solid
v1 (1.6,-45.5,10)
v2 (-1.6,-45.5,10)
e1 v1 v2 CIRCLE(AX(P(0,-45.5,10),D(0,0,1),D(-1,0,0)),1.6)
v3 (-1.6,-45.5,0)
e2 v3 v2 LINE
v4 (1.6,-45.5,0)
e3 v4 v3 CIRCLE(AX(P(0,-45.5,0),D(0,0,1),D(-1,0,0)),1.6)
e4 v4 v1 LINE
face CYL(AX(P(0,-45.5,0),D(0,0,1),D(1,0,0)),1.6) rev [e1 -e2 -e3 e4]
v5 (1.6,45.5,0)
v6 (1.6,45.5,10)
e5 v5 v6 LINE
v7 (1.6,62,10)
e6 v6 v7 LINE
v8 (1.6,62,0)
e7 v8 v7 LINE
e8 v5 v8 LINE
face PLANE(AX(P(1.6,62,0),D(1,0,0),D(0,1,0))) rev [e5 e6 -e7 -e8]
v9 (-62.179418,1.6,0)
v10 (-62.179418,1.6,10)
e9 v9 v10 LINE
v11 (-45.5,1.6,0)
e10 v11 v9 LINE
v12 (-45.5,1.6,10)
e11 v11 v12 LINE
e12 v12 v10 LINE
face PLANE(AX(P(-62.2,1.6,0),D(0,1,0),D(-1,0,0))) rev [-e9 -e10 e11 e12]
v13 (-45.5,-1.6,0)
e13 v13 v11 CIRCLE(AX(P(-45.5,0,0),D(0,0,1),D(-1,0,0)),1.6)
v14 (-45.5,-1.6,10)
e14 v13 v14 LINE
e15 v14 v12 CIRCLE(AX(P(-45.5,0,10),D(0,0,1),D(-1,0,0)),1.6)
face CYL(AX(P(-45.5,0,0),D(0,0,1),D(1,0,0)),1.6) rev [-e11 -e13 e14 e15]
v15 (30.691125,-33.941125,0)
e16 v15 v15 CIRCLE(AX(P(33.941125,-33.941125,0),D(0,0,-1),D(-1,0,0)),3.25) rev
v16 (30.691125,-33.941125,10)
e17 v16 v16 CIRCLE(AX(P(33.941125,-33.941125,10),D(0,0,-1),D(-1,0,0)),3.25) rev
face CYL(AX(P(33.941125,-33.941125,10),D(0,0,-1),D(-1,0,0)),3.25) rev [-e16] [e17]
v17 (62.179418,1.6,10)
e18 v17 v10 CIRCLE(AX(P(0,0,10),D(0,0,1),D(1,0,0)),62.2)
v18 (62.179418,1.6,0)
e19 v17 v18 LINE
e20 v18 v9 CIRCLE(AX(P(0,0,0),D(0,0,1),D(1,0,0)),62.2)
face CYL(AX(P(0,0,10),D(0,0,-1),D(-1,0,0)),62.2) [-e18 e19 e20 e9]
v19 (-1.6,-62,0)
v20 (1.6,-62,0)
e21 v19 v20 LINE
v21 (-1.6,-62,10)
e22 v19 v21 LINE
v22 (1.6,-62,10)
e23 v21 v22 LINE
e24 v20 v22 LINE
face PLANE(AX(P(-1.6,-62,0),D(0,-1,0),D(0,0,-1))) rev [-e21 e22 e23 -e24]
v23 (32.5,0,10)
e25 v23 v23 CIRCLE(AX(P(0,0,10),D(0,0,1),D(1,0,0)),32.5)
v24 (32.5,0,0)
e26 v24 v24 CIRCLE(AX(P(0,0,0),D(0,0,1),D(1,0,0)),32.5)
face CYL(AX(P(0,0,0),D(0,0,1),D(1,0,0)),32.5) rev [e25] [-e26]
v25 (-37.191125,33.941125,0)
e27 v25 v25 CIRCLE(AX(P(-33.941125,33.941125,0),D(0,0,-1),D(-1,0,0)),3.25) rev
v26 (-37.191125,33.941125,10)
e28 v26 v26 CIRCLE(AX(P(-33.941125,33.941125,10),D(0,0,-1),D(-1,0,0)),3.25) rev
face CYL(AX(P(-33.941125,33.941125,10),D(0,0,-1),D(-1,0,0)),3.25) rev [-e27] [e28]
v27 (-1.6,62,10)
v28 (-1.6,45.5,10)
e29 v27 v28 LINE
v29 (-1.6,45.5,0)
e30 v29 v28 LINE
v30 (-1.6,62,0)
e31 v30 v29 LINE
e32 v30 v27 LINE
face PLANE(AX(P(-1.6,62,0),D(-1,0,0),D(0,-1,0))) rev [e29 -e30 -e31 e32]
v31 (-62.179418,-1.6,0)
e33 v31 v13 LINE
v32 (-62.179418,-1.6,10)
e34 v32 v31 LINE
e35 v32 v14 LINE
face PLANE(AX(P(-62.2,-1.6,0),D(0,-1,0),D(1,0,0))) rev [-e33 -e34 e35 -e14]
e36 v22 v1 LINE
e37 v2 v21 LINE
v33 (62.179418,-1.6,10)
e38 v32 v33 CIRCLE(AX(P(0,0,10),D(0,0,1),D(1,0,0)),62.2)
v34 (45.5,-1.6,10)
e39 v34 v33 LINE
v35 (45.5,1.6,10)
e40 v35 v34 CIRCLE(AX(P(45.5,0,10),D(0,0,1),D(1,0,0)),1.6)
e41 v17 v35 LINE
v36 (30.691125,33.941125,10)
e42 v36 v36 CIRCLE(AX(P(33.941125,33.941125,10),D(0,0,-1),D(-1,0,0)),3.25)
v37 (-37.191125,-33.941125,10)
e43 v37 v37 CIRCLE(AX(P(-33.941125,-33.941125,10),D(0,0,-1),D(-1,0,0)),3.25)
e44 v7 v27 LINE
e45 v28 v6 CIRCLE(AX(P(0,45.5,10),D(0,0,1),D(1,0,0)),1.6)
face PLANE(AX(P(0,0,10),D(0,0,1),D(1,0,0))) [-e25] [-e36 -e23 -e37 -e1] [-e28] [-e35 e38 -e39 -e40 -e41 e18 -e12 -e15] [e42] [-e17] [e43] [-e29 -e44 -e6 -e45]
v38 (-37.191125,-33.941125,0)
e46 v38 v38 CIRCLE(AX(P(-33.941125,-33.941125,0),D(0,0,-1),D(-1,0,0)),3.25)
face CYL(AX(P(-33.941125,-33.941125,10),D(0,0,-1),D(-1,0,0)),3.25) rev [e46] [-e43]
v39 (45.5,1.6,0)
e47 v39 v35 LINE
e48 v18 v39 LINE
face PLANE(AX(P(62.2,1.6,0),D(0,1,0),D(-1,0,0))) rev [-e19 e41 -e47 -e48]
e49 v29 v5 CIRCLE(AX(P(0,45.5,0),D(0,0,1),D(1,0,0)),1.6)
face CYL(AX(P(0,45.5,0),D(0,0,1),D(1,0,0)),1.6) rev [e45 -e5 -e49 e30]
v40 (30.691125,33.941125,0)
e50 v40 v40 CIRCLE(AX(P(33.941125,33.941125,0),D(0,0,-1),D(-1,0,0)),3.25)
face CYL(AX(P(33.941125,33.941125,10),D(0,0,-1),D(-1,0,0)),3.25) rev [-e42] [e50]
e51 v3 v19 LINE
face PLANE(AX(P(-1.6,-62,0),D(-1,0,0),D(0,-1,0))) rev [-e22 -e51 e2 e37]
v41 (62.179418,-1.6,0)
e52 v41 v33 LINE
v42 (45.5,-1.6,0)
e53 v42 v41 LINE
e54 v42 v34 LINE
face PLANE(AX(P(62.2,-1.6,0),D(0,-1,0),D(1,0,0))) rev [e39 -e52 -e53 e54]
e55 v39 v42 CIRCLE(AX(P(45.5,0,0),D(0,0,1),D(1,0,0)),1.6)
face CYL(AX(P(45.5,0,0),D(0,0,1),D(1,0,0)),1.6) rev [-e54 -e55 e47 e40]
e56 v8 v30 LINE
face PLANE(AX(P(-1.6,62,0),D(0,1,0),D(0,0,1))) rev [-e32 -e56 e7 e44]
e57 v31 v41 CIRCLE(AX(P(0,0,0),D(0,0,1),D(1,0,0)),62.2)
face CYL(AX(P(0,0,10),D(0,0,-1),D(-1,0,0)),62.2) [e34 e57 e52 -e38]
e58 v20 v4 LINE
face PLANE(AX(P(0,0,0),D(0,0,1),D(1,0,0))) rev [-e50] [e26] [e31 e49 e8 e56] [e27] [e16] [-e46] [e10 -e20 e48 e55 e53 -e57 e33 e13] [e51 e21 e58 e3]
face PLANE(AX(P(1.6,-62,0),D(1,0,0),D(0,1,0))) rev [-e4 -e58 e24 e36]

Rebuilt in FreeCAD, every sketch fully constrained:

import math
import FreeCAD as App
import Part
import Sketcher
from FreeCAD import Vector
Q = App.Units.Quantity

doc = App.newDocument("Part")
body = doc.addObject("PartDesign::Body", "Body")

# Sketch on XY plane
sketch1 = doc.addObject("Sketcher::SketchObject", "Sketch")
body.addObject(sketch1)
sketch1.AttachmentSupport = (doc.XY_Plane, [""])
sketch1.MapMode = "FlatFace"
sketch1.addGeometry(Part.Circle(Vector(0, 0, 0), Vector(0, 0, 1), 62), False)
sketch1.addConstraint([
    Sketcher.Constraint("Coincident", 0, 3, -1, 1),
    Sketcher.Constraint("Diameter", 0, Q("124.4 mm")),
])
pad1 = doc.addObject("PartDesign::Pad", "Pad")
body.addObject(pad1)
pad1.Profile = sketch1
pad1.Length = 10

# Sketch on XY plane
sketch2 = doc.addObject("Sketcher::SketchObject", "Sketch001")
body.addObject(sketch2)
sketch2.AttachmentSupport = (doc.XY_Plane, [""])
sketch2.MapMode = "FlatFace"
sketch2.AttachmentOffset = App.Placement(Vector(0, 0, 10), App.Rotation())
sketch2.addGeometry(Part.Circle(Vector(0, 0, 0), Vector(0, 0, 1), 32), False)
sketch2.addConstraint([
    Sketcher.Constraint("Coincident", 0, 3, -1, 1),
    Sketcher.Constraint("Diameter", 0, Q("65 mm")),
])
pocket1 = doc.addObject("PartDesign::Pocket", "Pocket")
body.addObject(pocket1)
pocket1.Profile = sketch2
pocket1.Length = 10

# Sketch on XY plane
sketch3 = doc.addObject("Sketcher::SketchObject", "Sketch002")
body.addObject(sketch3)
sketch3.AttachmentSupport = (doc.XY_Plane, [""])
sketch3.MapMode = "FlatFace"
sketch3.AttachmentOffset = App.Placement(Vector(0, 0, 10), App.Rotation())
sketch3.addGeometry([
    Part.LineSegment(Vector(1.6, -62, 0), Vector(1.6, -45.5, 0)),  # 0
    Part.ArcOfCircle(Part.Circle(Vector(0, -45.5, 0), Vector(0, 0, 1), 1.6), math.radians(0), math.radians(180)),  # 1
    Part.LineSegment(Vector(-1.6, -45.5, 0), Vector(-1.6, -62, 0)),  # 2
    Part.LineSegment(Vector(-1.6, -62, 0), Vector(1.6, -62, 0)),  # 3
    Part.LineSegment(Vector(-1.6, 62, 0), Vector(-1.6, 45.5, 0)),  # 4
    Part.ArcOfCircle(Part.Circle(Vector(0, 45.5, 0), Vector(0, 0, 1), 1.6), math.radians(180), math.radians(360)),  # 5
    Part.LineSegment(Vector(1.6, 45.5, 0), Vector(1.6, 62, 0)),  # 6
    Part.LineSegment(Vector(1.6, 62, 0), Vector(-1.6, 62, 0)),  # 7
    Part.LineSegment(Vector(62.2, -1.6, 0), Vector(62.2, 1.6, 0)),  # 8
    Part.LineSegment(Vector(62.2, 1.6, 0), Vector(45.5, 1.6, 0)),  # 9
    Part.ArcOfCircle(Part.Circle(Vector(45.5, 0, 0), Vector(0, 0, 1), 1.6), math.radians(90), math.radians(270)),  # 10
    Part.LineSegment(Vector(45.5, -1.6, 0), Vector(62.2, -1.6, 0)),  # 11
    Part.LineSegment(Vector(-62.2, -1.6, 0), Vector(-45.5, -1.6, 0)),  # 12
    Part.ArcOfCircle(Part.Circle(Vector(-45.5, 0, 0), Vector(0, 0, 1), 1.6), math.radians(-90), math.radians(90)),  # 13
    Part.LineSegment(Vector(-45.5, 1.6, 0), Vector(-62.2, 1.6, 0)),  # 14
    Part.LineSegment(Vector(-62.2, 1.6, 0), Vector(-62.2, -1.6, 0)),  # 15
], False)
sketch3.addConstraint([
    Sketcher.Constraint("Tangent", 0, 2, 1, 1),
    Sketcher.Constraint("Tangent", 1, 2, 2, 1),
    Sketcher.Constraint("Coincident", 2, 2, 3, 1),
    Sketcher.Constraint("Coincident", 3, 2, 0, 1),
    Sketcher.Constraint("Tangent", 4, 2, 5, 1),
    Sketcher.Constraint("Tangent", 5, 2, 6, 1),
    Sketcher.Constraint("Coincident", 6, 2, 7, 1),
    Sketcher.Constraint("Coincident", 7, 2, 4, 1),
    Sketcher.Constraint("Coincident", 8, 2, 9, 1),
    Sketcher.Constraint("Tangent", 9, 2, 10, 1),
    Sketcher.Constraint("Tangent", 10, 2, 11, 1),
    Sketcher.Constraint("Coincident", 11, 2, 8, 1),
    Sketcher.Constraint("Tangent", 12, 2, 13, 1),
    Sketcher.Constraint("Tangent", 13, 2, 14, 1),
    Sketcher.Constraint("Coincident", 14, 2, 15, 1),
    Sketcher.Constraint("Coincident", 15, 2, 12, 1),
    Sketcher.Constraint("Vertical", 0),
    Sketcher.Constraint("Vertical", 2),
    Sketcher.Constraint("Horizontal", 3),
    Sketcher.Constraint("Vertical", 4),
    Sketcher.Constraint("Vertical", 6),
    Sketcher.Constraint("Horizontal", 7),
    Sketcher.Constraint("Vertical", 8),
    Sketcher.Constraint("Horizontal", 9),
    Sketcher.Constraint("Horizontal", 11),
    Sketcher.Constraint("Horizontal", 12),
    Sketcher.Constraint("Horizontal", 14),
    Sketcher.Constraint("Vertical", 15),
    Sketcher.Constraint("Equal", 1, 5),
    Sketcher.Constraint("Equal", 5, 10),
    Sketcher.Constraint("Equal", 10, 13),
    Sketcher.Constraint("Symmetric", 1, 3, 5, 3, -1, 1),
    Sketcher.Constraint("Symmetric", 10, 3, 13, 3, -1, 1),
    Sketcher.Constraint("Symmetric", 8, 2, 14, 2, -2),
    Sketcher.Constraint("Symmetric", 3, 2, 6, 2, -1),
    Sketcher.Constraint("Radius", 1, Q("1.6 mm")),
    Sketcher.Constraint("DistanceX", 9, 2, 9, 1, Q("16.7 mm")),
    Sketcher.Constraint("DistanceY", 0, 1, 0, 2, Q("16.5 mm")),
    Sketcher.Constraint("DistanceY", 2, 2, -1, 1, Q("62 mm")),
    Sketcher.Constraint("DistanceX", 13, 3, 10, 3, Q("91 mm")),
])
pocket2 = doc.addObject("PartDesign::Pocket", "Pocket001")
body.addObject(pocket2)
pocket2.Profile = sketch3
pocket2.Length = 10

# Sketch on XY plane
sketch4 = doc.addObject("Sketcher::SketchObject", "Sketch003")
body.addObject(sketch4)
sketch4.AttachmentSupport = (doc.XY_Plane, [""])
sketch4.MapMode = "FlatFace"
sketch4.addGeometry([
    Part.Circle(Vector(33.9, 33.9, 0), Vector(0, 0, 1), 3.2),
    Part.Circle(Vector(-33.9, 33.9, 0), Vector(0, 0, 1), 3.2),
    Part.Circle(Vector(-33.9, -33.9, 0), Vector(0, 0, 1), 3.2),
    Part.Circle(Vector(33.9, -33.9, 0), Vector(0, 0, 1), 3.2),
], False)
sketch4.addConstraint([
    Sketcher.Constraint("Equal", 0, 1),
    Sketcher.Constraint("Equal", 1, 2),
    Sketcher.Constraint("Equal", 2, 3),
    Sketcher.Constraint("Symmetric", 0, 3, 2, 3, -1, 1),
    Sketcher.Constraint("Symmetric", 1, 3, 3, 3, -1, 1),
    Sketcher.Constraint("Symmetric", 0, 3, 1, 3, -2),
    Sketcher.Constraint("Diameter", 0, Q("6.5 mm")),
    Sketcher.Constraint("DistanceX", 1, 3, 0, 3, Q("67.882251 mm")),
    Sketcher.Constraint("DistanceY", 2, 3, 1, 3, Q("67.882251 mm")),
])
pocket3 = doc.addObject("PartDesign::Pocket", "Pocket002")
body.addObject(pocket3)
pocket3.Profile = sketch4
pocket3.Length = 10
pocket3.Reversed = True

doc.recompute()
